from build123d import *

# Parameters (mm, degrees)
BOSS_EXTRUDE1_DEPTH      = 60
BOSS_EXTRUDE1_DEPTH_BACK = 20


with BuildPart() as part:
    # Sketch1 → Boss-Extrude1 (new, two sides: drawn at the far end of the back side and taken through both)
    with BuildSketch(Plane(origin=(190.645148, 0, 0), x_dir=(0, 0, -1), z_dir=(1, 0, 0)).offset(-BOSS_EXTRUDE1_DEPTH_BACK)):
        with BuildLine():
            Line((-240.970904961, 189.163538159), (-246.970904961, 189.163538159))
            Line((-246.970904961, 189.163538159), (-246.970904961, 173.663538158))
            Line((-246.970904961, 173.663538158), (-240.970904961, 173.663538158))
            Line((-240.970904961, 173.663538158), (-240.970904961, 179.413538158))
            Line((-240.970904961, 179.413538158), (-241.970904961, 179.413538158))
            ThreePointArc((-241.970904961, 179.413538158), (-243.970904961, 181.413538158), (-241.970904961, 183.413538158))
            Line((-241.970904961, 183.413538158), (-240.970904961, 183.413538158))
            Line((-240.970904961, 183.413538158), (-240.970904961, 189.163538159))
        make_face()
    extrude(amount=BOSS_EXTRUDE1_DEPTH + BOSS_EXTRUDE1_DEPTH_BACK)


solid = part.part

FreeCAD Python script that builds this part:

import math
import FreeCAD as App
import Part
import Sketcher

doc = App.newDocument("Part")
body = doc.addObject("PartDesign::Body", "Body")

sketch1 = body.newObject("Sketcher::SketchObject", "Sketch")
sketch1.AttachmentSupport = (doc.getObject("YZ_Plane"), [""])
sketch1.MapMode = "FlatFace"
sketch1.AttachmentOffset = App.Placement(App.Vector(0, 0, 190.645148), App.Rotation())
sketch1.addGeometry(Part.LineSegment(App.Vector(189.2, 241, 0), App.Vector(189.2, 247, 0)), False)
sketch1.addGeometry(Part.LineSegment(App.Vector(189.2, 247, 0), App.Vector(173.7, 247, 0)), False)
sketch1.addGeometry(Part.LineSegment(App.Vector(173.7, 247, 0), App.Vector(173.7, 241, 0)), False)
sketch1.addGeometry(Part.LineSegment(App.Vector(173.7, 241, 0), App.Vector(179.4, 241, 0)), False)
sketch1.addGeometry(Part.LineSegment(App.Vector(179.4, 241, 0), App.Vector(179.4, 242, 0)), False)
sketch1.addGeometry(Part.ArcOfCircle(Part.Circle(App.Vector(181.4, 242, 0), App.Vector(0, 0, 1), 2), math.radians(0), math.radians(180)), False)
sketch1.addGeometry(Part.LineSegment(App.Vector(183.4, 242, 0), App.Vector(183.4, 241, 0)), False)
sketch1.addGeometry(Part.LineSegment(App.Vector(183.4, 241, 0), App.Vector(189.2, 241, 0)), False)
sketch1.addConstraint(Sketcher.Constraint("Coincident", 0, 2, 1, 1))
sketch1.addConstraint(Sketcher.Constraint("Coincident", 1, 2, 2, 1))
sketch1.addConstraint(Sketcher.Constraint("Coincident", 2, 2, 3, 1))
sketch1.addConstraint(Sketcher.Constraint("Coincident", 3, 2, 4, 1))
sketch1.addConstraint(Sketcher.Constraint("Tangent", 4, 2, 5, 2))
sketch1.addConstraint(Sketcher.Constraint("Tangent", 5, 1, 6, 1))
sketch1.addConstraint(Sketcher.Constraint("Coincident", 6, 2, 7, 1))
sketch1.addConstraint(Sketcher.Constraint("Coincident", 7, 2, 0, 1))
sketch1.addConstraint(Sketcher.Constraint("Vertical", 0))
sketch1.addConstraint(Sketcher.Constraint("Horizontal", 1))
sketch1.addConstraint(Sketcher.Constraint("Vertical", 2))
sketch1.addConstraint(Sketcher.Constraint("Horizontal", 3))
sketch1.addConstraint(Sketcher.Constraint("Vertical", 4))
sketch1.addConstraint(Sketcher.Constraint("Vertical", 6))
sketch1.addConstraint(Sketcher.Constraint("Horizontal", 7))
sketch1.addConstraint(Sketcher.Constraint("Horizontal", 3, 2, 6, 2))
sketch1.addConstraint(Sketcher.Constraint("Equal", 3, 7))
sketch1.addConstraint(Sketcher.Constraint("Radius", 5, 2.0))
sketch1.addConstraint(Sketcher.Constraint("DistanceY", 0, 1, 0, 2, 6.0))
sketch1.addConstraint(Sketcher.Constraint("DistanceY", 4, 1, 4, 2, 1.0))
sketch1.addConstraint(Sketcher.Constraint("DistanceX", 1, 2, 1, 1, 15.5))
sketch1.addConstraint(Sketcher.Constraint("DistanceX", -1, 1, 5, 3, 181.413538))
sketch1.addConstraint(Sketcher.Constraint("DistanceY", -1, 1, 5, 3, 241.970905))
pad1 = body.newObject("PartDesign::Pad", "Pad")
pad1.Profile = sketch1
pad1.Type = "TwoLengths"
pad1.Length = 60
pad1.Length2 = 20

doc.recompute()
